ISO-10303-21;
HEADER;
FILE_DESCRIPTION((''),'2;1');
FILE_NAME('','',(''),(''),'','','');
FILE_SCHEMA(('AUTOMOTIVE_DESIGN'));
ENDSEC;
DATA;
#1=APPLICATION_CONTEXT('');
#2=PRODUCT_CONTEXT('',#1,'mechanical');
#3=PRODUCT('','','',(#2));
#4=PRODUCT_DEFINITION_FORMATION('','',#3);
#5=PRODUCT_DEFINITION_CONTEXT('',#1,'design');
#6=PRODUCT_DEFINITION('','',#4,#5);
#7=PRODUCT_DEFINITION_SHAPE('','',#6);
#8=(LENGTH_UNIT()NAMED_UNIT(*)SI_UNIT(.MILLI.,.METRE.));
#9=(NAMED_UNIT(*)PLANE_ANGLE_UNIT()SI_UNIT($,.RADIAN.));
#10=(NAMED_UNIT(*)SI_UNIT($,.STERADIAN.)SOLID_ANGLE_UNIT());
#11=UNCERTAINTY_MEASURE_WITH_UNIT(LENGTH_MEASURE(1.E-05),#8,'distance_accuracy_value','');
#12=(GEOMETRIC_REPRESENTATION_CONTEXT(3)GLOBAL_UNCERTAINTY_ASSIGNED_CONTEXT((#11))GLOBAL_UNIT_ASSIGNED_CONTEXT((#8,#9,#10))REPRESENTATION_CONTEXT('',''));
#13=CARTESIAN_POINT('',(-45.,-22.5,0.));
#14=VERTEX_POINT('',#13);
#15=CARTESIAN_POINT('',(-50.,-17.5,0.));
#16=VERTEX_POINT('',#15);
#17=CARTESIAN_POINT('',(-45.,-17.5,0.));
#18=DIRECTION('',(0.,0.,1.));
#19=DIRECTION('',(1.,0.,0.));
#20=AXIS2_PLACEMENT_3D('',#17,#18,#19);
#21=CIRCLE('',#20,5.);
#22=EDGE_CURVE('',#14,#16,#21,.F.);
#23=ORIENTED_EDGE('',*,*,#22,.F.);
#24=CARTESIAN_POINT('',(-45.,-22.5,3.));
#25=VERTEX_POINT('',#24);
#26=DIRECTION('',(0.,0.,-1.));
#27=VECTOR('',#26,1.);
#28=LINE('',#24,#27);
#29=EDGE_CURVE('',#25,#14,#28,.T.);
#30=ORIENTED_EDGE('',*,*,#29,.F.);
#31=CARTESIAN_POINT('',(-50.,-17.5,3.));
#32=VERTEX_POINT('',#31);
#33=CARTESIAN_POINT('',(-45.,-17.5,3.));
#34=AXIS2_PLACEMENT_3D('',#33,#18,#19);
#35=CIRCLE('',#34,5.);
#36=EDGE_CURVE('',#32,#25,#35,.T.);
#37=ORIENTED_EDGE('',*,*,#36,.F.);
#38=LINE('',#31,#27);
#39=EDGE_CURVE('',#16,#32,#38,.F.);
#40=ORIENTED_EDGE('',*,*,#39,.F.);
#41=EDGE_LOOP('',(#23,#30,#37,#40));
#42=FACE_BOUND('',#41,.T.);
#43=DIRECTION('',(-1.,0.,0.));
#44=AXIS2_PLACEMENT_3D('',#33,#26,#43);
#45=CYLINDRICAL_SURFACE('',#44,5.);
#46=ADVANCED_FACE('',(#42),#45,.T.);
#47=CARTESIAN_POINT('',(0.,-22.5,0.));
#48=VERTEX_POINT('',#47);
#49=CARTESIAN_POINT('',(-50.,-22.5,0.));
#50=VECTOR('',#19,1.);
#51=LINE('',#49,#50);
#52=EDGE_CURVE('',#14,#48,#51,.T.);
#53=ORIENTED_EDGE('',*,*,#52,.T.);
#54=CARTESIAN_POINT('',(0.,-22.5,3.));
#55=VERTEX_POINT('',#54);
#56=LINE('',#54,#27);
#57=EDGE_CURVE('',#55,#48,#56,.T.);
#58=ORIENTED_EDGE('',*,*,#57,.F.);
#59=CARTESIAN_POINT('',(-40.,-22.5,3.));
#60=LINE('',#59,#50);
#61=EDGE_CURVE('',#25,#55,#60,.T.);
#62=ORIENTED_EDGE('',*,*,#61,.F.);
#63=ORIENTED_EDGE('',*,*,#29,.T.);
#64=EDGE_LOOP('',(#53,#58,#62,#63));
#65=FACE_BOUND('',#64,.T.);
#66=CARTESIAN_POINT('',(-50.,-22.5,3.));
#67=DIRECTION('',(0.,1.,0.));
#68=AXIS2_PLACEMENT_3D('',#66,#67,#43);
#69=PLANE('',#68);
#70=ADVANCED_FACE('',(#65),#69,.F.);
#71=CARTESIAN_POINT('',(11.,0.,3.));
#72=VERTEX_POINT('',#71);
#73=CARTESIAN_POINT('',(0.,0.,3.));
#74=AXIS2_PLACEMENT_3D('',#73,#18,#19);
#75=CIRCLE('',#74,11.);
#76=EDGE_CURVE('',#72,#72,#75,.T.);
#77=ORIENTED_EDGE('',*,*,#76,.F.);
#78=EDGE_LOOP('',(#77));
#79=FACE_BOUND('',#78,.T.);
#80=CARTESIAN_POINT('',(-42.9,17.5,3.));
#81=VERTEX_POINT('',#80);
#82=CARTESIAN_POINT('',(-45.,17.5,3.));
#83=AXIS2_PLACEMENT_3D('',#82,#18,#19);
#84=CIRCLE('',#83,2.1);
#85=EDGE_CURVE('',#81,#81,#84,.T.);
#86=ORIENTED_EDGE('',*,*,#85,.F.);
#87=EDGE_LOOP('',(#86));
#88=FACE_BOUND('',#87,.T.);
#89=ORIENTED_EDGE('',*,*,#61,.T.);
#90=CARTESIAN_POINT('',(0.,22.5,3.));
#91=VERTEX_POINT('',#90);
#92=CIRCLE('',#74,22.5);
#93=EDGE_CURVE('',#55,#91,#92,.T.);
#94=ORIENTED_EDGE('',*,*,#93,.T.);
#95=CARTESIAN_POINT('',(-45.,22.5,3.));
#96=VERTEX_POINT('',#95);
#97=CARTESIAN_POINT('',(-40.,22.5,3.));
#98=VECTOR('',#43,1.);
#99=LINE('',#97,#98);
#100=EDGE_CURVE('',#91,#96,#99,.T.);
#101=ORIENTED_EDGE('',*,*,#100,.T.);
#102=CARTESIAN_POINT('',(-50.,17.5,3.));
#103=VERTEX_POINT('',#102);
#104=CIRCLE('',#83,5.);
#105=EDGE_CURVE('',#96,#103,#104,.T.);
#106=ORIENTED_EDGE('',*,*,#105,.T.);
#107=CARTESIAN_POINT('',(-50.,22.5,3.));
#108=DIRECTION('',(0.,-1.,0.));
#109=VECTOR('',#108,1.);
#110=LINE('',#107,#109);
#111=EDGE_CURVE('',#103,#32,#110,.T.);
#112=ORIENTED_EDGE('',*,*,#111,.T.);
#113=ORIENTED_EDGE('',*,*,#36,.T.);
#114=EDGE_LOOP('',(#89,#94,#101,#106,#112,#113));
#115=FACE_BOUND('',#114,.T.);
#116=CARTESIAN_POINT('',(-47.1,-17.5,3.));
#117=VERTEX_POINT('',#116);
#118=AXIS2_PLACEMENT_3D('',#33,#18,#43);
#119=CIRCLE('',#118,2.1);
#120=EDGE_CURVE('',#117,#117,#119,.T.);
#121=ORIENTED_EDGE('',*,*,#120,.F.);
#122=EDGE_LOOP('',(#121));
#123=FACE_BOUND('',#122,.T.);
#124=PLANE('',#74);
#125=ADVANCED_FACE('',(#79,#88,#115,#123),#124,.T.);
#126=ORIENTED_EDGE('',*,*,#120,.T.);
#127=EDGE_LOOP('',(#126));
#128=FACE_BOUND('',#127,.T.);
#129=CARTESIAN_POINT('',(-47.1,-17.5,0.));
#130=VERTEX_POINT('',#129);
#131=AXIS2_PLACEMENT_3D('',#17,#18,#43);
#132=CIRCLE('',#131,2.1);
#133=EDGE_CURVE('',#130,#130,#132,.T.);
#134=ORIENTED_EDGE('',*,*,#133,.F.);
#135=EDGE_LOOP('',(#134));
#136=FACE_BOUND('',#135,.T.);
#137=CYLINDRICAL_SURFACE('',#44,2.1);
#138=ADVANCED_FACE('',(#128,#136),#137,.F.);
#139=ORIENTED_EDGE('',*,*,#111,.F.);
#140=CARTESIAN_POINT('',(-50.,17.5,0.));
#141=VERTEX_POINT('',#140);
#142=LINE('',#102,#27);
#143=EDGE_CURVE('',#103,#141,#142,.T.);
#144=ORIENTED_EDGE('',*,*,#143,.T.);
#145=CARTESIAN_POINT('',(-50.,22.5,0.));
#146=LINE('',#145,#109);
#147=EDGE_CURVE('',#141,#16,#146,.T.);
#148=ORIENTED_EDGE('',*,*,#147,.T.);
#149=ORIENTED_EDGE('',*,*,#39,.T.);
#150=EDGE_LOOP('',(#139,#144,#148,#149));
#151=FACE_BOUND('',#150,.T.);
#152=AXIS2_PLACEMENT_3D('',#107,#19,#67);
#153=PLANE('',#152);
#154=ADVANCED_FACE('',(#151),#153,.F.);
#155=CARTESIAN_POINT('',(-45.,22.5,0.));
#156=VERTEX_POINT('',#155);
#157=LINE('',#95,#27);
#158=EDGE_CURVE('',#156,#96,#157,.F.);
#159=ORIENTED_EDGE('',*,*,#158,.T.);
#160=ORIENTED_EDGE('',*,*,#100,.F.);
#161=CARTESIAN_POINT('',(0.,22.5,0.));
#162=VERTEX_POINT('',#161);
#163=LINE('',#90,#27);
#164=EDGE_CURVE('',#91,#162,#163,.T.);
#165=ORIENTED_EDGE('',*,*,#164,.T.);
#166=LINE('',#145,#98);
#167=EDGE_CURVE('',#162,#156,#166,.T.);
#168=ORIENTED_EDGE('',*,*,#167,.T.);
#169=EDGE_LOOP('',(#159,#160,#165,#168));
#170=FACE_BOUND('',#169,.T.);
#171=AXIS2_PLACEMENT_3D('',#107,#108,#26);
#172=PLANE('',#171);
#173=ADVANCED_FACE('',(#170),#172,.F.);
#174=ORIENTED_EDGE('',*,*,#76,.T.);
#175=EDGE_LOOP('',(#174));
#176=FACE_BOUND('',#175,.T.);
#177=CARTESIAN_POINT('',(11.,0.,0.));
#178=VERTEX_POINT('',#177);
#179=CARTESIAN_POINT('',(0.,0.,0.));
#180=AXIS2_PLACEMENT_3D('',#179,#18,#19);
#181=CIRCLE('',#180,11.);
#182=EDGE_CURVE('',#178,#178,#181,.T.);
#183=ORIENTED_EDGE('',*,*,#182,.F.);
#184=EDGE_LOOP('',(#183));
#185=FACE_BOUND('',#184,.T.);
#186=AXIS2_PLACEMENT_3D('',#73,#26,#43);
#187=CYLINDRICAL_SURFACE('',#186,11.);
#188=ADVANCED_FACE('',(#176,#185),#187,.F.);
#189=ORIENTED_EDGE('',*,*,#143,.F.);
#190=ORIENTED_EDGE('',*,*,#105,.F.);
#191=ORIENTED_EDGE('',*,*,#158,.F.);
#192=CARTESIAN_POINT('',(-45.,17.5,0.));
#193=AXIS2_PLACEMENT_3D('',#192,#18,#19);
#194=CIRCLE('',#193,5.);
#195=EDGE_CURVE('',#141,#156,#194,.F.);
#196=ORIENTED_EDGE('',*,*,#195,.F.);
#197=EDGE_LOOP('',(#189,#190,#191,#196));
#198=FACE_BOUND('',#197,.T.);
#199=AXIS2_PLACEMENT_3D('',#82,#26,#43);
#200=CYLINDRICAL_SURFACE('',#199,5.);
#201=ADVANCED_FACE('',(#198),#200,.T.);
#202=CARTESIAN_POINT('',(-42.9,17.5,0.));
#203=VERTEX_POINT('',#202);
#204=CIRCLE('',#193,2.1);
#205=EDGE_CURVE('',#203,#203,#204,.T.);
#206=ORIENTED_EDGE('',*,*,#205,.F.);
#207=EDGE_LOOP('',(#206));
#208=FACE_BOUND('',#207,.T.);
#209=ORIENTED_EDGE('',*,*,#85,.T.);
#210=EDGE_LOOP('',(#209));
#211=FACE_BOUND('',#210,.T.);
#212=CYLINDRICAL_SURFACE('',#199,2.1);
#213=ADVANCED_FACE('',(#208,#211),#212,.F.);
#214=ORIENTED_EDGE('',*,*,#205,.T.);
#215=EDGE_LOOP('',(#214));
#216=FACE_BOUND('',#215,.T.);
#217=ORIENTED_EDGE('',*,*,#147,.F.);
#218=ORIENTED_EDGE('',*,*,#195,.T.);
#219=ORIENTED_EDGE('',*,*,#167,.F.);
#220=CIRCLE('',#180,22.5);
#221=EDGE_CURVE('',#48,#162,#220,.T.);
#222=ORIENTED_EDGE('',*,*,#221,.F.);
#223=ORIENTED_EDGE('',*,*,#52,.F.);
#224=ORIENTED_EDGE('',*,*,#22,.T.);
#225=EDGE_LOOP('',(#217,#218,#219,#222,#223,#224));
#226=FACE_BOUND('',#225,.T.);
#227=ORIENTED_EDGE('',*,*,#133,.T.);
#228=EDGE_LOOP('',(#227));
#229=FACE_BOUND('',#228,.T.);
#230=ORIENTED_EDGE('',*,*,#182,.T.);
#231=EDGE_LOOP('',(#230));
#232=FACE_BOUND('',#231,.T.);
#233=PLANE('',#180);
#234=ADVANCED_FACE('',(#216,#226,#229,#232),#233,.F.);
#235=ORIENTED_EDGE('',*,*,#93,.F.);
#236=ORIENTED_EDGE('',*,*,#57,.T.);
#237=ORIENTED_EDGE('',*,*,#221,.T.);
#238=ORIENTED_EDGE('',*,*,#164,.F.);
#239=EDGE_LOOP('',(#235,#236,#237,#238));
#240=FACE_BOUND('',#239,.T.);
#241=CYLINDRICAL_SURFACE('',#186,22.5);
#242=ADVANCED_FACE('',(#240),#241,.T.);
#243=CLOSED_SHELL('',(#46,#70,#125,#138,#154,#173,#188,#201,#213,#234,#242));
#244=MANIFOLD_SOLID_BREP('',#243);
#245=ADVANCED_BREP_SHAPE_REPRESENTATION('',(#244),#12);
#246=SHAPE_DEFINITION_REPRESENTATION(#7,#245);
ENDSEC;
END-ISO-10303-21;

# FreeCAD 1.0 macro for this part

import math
import FreeCAD as App
import Part
import Sketcher

V = App.Vector
Q = App.Units.Quantity


def edges_at(feature, points):
    """Names of the edges that pass closest to the given points."""
    edges = feature.Shape.Edges
    near = lambda p: min(range(len(edges)), key=lambda i: edges[i].distToShape(Part.Vertex(*p))[0])
    return sorted({f"Edge{near(p) + 1}" for p in points})

doc = App.newDocument("Part")
body = doc.addObject("PartDesign::Body", "Body")

# Sketch on XY plane
sketch1 = doc.addObject("Sketcher::SketchObject", "Sketch")
body.addObject(sketch1)
sketch1.AttachmentSupport = (doc.XY_Plane, [""])
sketch1.MapMode = "FlatFace"
sketch1.addGeometry(Part.ArcOfCircle(Part.Circle(V(0, 0, 0), V(0, 0, 1), 22.5), math.radians(-90), math.radians(90)), False)
sketch1.addGeometry(Part.LineSegment(V(0, 22.5, 0), V(-50, 22.5, 0)), False)
sketch1.addGeometry(Part.LineSegment(V(-50, 22.5, 0), V(-50, -22.5, 0)), False)
sketch1.addGeometry(Part.LineSegment(V(-50, -22.5, 0), V(0, -22.5, 0)), False)
sketch1.addGeometry(Part.Circle(V(-45, -17.5, 0), V(0, 0, 1), 2.1), False)
sketch1.addGeometry(Part.Circle(V(0, 0, 0), V(0, 0, 1), 11), False)
sketch1.addGeometry(Part.Circle(V(-45, 17.5, 0), V(0, 0, 1), 2.1), False)
sketch1.addConstraint(Sketcher.Constraint("Tangent", 0, 2, 1, 1))
sketch1.addConstraint(Sketcher.Constraint("Coincident", 1, 2, 2, 1))
sketch1.addConstraint(Sketcher.Constraint("Coincident", 2, 2, 3, 1))
sketch1.addConstraint(Sketcher.Constraint("Tangent", 3, 2, 0, 1))
sketch1.addConstraint(Sketcher.Constraint("Horizontal", 1))
sketch1.addConstraint(Sketcher.Constraint("Vertical", 2))
sketch1.addConstraint(Sketcher.Constraint("Horizontal", 3))
sketch1.addConstraint(Sketcher.Constraint("Coincident", 0, 3, -1, 1))
sketch1.addConstraint(Sketcher.Constraint("Coincident", 5, 3, -1, 1))
sketch1.addConstraint(Sketcher.Constraint("Equal", 4, 6))
sketch1.addConstraint(Sketcher.Constraint("Symmetric", 4, 3, 6, 3, -1))
sketch1.addConstraint(Sketcher.Constraint("Diameter", 5, Q("22 mm")))
sketch1.addConstraint(Sketcher.Constraint("Diameter", 4, Q("4.2 mm")))
sketch1.addConstraint(Sketcher.Constraint("Radius", 0, Q("22.5 mm")))
sketch1.addConstraint(Sketcher.Constraint("DistanceX", 1, 2, 1, 1, Q("50 mm")))
sketch1.addConstraint(Sketcher.Constraint("DistanceX", 4, 3, -1, 1, Q("45 mm")))
sketch1.addConstraint(Sketcher.Constraint("DistanceY", 4, 3, 6, 3, Q("35 mm")))
pad1 = doc.addObject("PartDesign::Pad", "Pad")
body.addObject(pad1)
pad1.Profile = sketch1
pad1.Length = 3
doc.recompute()

fillet = doc.addObject("PartDesign::Fillet", "Fillet")
body.addObject(fillet)
fillet.Base = (pad1, edges_at(pad1, [(-50, -22.5, 1.5), (-50, 22.5, 1.5)]))
fillet.Radius = 5

doc.recompute()
